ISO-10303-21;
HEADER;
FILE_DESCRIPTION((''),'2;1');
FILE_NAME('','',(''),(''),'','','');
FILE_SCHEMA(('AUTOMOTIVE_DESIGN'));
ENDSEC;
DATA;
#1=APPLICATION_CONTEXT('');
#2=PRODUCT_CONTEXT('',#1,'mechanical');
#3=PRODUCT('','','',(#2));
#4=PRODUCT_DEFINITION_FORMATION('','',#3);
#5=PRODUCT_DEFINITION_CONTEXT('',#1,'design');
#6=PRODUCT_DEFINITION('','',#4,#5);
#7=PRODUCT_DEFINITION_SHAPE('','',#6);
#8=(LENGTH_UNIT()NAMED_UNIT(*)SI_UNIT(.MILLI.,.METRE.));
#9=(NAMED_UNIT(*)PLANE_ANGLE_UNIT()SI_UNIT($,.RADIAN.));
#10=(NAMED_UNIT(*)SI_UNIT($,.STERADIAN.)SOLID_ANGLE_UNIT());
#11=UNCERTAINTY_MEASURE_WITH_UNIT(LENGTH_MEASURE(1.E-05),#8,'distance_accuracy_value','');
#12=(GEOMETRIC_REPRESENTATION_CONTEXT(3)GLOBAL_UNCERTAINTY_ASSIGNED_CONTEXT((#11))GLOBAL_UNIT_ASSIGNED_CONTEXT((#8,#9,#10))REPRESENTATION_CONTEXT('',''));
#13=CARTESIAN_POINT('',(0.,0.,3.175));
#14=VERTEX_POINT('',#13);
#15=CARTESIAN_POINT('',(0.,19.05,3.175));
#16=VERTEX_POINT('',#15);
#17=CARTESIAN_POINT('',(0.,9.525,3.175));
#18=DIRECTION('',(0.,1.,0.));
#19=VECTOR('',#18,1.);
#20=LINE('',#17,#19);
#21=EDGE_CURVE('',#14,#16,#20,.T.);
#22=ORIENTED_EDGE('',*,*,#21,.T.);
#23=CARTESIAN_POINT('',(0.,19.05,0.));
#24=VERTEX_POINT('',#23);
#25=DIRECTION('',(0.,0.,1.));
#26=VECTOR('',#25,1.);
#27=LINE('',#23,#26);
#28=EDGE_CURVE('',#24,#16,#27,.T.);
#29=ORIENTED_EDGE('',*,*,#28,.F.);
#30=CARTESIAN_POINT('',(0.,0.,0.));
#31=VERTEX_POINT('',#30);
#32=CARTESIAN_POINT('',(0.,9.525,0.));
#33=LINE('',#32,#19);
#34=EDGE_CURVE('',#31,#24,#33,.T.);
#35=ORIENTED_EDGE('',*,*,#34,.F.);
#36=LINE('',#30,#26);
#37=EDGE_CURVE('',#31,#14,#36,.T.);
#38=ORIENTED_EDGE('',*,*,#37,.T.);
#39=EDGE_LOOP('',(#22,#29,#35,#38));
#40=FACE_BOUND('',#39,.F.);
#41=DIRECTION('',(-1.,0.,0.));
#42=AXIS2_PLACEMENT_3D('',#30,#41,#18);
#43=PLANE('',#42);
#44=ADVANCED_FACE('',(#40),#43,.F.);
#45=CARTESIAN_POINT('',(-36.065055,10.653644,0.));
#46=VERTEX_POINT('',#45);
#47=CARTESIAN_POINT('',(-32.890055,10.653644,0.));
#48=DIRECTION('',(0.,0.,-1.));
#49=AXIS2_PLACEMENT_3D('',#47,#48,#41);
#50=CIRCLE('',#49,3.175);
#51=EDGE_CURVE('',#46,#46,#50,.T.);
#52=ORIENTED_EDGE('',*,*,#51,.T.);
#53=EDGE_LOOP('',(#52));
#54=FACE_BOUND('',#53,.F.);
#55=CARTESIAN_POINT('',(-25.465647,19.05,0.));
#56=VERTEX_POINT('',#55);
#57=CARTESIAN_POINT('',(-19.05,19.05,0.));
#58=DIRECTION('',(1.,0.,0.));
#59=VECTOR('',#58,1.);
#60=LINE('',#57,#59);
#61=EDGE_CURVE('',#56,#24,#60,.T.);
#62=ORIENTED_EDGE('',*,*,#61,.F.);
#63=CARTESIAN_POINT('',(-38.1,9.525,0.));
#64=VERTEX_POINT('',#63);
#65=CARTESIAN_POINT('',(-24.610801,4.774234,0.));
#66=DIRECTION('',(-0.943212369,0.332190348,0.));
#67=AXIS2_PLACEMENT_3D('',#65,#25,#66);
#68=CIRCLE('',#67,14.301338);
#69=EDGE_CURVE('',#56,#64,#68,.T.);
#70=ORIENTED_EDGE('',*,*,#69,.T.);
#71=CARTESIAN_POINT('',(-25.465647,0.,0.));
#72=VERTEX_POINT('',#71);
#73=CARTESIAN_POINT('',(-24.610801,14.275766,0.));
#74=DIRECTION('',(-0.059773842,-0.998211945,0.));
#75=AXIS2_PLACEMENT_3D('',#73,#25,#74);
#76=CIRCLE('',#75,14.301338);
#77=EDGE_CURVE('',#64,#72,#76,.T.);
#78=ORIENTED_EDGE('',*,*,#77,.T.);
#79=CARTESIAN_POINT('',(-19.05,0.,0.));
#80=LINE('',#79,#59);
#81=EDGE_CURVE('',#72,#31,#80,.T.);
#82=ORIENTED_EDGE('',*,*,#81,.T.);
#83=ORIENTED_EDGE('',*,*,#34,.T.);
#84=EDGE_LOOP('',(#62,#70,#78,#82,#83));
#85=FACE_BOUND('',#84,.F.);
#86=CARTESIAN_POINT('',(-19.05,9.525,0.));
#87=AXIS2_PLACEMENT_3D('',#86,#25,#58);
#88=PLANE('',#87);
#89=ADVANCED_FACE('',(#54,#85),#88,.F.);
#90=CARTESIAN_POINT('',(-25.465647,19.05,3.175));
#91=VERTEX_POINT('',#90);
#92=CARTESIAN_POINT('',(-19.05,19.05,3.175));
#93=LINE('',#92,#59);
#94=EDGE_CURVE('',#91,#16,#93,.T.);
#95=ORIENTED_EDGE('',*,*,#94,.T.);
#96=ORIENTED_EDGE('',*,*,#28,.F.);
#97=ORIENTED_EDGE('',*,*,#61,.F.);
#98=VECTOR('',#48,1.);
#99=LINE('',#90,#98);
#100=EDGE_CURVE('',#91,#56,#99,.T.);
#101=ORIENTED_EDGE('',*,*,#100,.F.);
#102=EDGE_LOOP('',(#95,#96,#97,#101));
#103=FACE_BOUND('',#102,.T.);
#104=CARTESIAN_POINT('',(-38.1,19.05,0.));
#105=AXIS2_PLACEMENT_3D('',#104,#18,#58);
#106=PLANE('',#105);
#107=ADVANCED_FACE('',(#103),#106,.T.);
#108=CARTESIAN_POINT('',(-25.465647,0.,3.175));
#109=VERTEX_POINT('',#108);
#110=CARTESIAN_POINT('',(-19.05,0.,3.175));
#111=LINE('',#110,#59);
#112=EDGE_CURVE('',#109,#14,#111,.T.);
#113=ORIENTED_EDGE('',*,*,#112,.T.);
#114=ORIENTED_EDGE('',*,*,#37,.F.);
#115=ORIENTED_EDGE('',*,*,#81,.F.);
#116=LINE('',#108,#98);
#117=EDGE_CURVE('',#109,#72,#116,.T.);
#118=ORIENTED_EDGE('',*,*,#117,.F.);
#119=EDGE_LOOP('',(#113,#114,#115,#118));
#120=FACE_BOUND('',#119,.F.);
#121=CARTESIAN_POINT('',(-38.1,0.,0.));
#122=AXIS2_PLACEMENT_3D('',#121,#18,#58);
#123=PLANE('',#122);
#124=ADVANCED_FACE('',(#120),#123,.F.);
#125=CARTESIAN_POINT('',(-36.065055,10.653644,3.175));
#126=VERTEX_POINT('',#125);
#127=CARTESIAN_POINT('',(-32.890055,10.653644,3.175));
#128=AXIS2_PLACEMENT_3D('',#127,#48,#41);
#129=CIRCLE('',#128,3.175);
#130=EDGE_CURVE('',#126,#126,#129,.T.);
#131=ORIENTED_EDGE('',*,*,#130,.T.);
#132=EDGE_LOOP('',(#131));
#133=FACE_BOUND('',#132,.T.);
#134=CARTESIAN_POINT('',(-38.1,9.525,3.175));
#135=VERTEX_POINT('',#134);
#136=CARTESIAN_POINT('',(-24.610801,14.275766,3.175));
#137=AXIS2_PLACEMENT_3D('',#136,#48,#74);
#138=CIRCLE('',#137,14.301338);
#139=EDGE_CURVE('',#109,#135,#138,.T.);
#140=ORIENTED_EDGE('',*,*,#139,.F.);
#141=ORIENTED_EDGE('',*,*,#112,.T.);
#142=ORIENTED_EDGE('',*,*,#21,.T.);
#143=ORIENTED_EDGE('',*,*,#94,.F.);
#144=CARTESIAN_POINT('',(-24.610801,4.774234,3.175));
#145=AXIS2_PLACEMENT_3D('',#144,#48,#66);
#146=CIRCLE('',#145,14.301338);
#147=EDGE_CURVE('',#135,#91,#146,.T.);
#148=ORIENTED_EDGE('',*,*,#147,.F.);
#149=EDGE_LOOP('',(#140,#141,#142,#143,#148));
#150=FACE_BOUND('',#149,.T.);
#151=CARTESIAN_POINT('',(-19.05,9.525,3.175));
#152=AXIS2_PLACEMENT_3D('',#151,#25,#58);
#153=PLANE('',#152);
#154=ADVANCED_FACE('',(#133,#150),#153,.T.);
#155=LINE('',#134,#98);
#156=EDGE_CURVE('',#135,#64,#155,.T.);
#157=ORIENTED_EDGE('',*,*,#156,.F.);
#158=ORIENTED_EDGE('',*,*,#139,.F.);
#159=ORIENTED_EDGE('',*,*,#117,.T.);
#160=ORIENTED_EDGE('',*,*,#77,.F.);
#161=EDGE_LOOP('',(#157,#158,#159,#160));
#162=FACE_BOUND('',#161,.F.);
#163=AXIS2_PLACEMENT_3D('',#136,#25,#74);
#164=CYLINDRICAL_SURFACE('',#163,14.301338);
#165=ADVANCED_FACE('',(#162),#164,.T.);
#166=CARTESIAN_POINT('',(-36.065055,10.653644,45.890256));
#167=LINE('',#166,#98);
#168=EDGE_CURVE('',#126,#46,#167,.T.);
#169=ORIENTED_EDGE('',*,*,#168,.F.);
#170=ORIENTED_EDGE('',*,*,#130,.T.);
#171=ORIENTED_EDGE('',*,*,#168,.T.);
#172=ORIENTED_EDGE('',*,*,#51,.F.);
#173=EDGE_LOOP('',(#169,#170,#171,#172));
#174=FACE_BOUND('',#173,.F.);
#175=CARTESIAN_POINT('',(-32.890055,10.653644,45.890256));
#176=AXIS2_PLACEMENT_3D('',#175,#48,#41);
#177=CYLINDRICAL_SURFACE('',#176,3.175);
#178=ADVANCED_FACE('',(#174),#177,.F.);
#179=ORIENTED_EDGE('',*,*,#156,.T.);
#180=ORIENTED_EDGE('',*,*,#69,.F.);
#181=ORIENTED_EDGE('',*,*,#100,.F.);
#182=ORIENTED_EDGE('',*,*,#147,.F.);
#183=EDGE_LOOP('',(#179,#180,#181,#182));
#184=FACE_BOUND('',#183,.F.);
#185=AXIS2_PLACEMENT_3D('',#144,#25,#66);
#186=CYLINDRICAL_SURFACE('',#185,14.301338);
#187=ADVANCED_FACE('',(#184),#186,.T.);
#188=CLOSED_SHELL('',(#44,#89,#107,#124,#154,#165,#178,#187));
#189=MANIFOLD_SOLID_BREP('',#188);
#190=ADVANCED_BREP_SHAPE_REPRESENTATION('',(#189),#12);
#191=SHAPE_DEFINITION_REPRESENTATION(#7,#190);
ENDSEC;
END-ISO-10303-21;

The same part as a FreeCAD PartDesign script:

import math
import FreeCAD as App
import Part
import Sketcher
Q = App.Units.Quantity

doc = App.newDocument("Part")
body = doc.addObject("PartDesign::Body", "Body")

# Sketch on XY plane
sketch1 = doc.addObject("Sketcher::SketchObject", "Sketch")
body.addObject(sketch1)
sketch1.AttachmentSupport = (doc.XY_Plane, [""])
sketch1.MapMode = "FlatFace"
sketch1.addGeometry(Part.LineSegment(App.Vector(-38.1, 19.05, 0), App.Vector(-38.1, 0, 0)), False)
sketch1.addGeometry(Part.LineSegment(App.Vector(-38.1, 0, 0), App.Vector(0, 0, 0)), False)
sketch1.addGeometry(Part.LineSegment(App.Vector(0, 0, 0), App.Vector(0, 19.05, 0)), False)
sketch1.addGeometry(Part.LineSegment(App.Vector(0, 19.05, 0), App.Vector(-38.1, 19.05, 0)), False)
sketch1.addConstraint(Sketcher.Constraint("Coincident", 0, 2, 1, 1))
sketch1.addConstraint(Sketcher.Constraint("Coincident", 1, 2, 2, 1))
sketch1.addConstraint(Sketcher.Constraint("Coincident", 2, 2, 3, 1))
sketch1.addConstraint(Sketcher.Constraint("Coincident", 3, 2, 0, 1))
sketch1.addConstraint(Sketcher.Constraint("Vertical", 0))
sketch1.addConstraint(Sketcher.Constraint("Horizontal", 1))
sketch1.addConstraint(Sketcher.Constraint("Vertical", 2))
sketch1.addConstraint(Sketcher.Constraint("Horizontal", 3))
sketch1.addConstraint(Sketcher.Constraint("Coincident", 1, 2, -1, 1))
sketch1.addConstraint(Sketcher.Constraint("DistanceX", 1, 1, 1, 2, Q("1.5 in")))
sketch1.addConstraint(Sketcher.Constraint("DistanceY", 0, 2, 0, 1, Q("0.75 in")))
pad1 = doc.addObject("PartDesign::Pad", "Pad")
body.addObject(pad1)
pad1.Profile = sketch1
pad1.Length = Q("0.125 in")

# Sketch on XY plane
sketch2 = doc.addObject("Sketcher::SketchObject", "Sketch001")
body.addObject(sketch2)
sketch2.AttachmentSupport = (doc.XY_Plane, [""])
sketch2.MapMode = "FlatFace"
sketch2.AttachmentOffset = App.Placement(App.Vector(0, 0, 0.125 * 25.4), App.Rotation())
sketch2.addGeometry(Part.ArcOfCircle(Part.Circle(App.Vector(-24.610801, 4.774234, 0), App.Vector(0, 0, 1), 14.301338), math.radians(93.426832), math.radians(160.598225)), False)
sketch2.addGeometry(Part.LineSegment(App.Vector(-25.465647, 19.05, 0), App.Vector(-38.1, 19.05, 0)), False)
sketch2.addGeometry(Part.LineSegment(App.Vector(-38.1, 19.05, 0), App.Vector(-38.1, 9.525, 0)), False)
sketch2.addGeometry(Part.ArcOfCircle(Part.Circle(App.Vector(-24.610801, 14.275766, 0), App.Vector(0, 0, 1), 14.301338), math.radians(-160.598225), math.radians(-93.426832)), False)
sketch2.addGeometry(Part.LineSegment(App.Vector(-38.1, 9.525, 0), App.Vector(-38.1, 0, 0)), False)
sketch2.addGeometry(Part.LineSegment(App.Vector(-38.1, 0, 0), App.Vector(-25.465647, 0, 0)), False)
sketch2.addConstraint(Sketcher.Constraint("Coincident", 0, 1, 1, 1))
sketch2.addConstraint(Sketcher.Constraint("Coincident", 1, 2, 2, 1))
sketch2.addConstraint(Sketcher.Constraint("Coincident", 2, 2, 0, 2))
sketch2.addConstraint(Sketcher.Constraint("Coincident", 3, 1, 4, 1))
sketch2.addConstraint(Sketcher.Constraint("Coincident", 4, 2, 5, 1))
sketch2.addConstraint(Sketcher.Constraint("Coincident", 5, 2, 3, 2))
sketch2.addConstraint(Sketcher.Constraint("Horizontal", 1))
sketch2.addConstraint(Sketcher.Constraint("Vertical", 2))
sketch2.addConstraint(Sketcher.Constraint("Vertical", 4))
sketch2.addConstraint(Sketcher.Constraint("Horizontal", 5))
sketch2.addConstraint(Sketcher.Constraint("Coincident", 3, 1, 2, 2))
sketch2.addConstraint(Sketcher.Constraint("Equal", 0, 3))
sketch2.addConstraint(Sketcher.Constraint("PointOnObject", 4, 2, -1))
sketch2.addConstraint(Sketcher.Constraint("Vertical", 0, 3, 3, 3))
sketch2.addConstraint(Sketcher.Constraint("Vertical", 0, 1, 5, 2))
sketch2.addConstraint(Sketcher.Constraint("DistanceX", 1, 2, -1, 1, Q("1.5 in")))
sketch2.addConstraint(Sketcher.Constraint("DistanceY", 2, 2, 2, 1, Q("0.375 in")))
sketch2.addConstraint(Sketcher.Constraint("Radius", 0, 14.301338))
sketch2.addConstraint(Sketcher.Constraint("DistanceX", 0, 3, -1, 1, 24.610801))
pocket1 = doc.addObject("PartDesign::Pocket", "Pocket")
body.addObject(pocket1)
pocket1.Profile = sketch2
pocket1.Type = "ThroughAll"

# Sketch on XY plane
sketch3 = doc.addObject("Sketcher::SketchObject", "Sketch002")
body.addObject(sketch3)
sketch3.AttachmentSupport = (doc.XY_Plane, [""])
sketch3.MapMode = "FlatFace"
sketch3.AttachmentOffset = App.Placement(App.Vector(0, 0, 0.125 * 25.4), App.Rotation())
sketch3.addGeometry(Part.Circle(App.Vector(-32.890055, 10.653644, 0), App.Vector(0, 0, 1), 3.175), False)
sketch3.addConstraint(Sketcher.Constraint("Diameter", 0, Q("0.25 in")))
sketch3.addConstraint(Sketcher.Constraint("DistanceX", 0, 3, -1, 1, 32.890055))
sketch3.addConstraint(Sketcher.Constraint("DistanceY", -1, 1, 0, 3, 10.653644))
doc.recompute()
hole = doc.addObject("PartDesign::Hole", "Hole")
body.addObject(hole)
hole.Profile = sketch3
hole.ThreadType = "None"
hole.Diameter = Q("0.25 in")
hole.DepthType = "ThroughAll"

doc.recompute()
